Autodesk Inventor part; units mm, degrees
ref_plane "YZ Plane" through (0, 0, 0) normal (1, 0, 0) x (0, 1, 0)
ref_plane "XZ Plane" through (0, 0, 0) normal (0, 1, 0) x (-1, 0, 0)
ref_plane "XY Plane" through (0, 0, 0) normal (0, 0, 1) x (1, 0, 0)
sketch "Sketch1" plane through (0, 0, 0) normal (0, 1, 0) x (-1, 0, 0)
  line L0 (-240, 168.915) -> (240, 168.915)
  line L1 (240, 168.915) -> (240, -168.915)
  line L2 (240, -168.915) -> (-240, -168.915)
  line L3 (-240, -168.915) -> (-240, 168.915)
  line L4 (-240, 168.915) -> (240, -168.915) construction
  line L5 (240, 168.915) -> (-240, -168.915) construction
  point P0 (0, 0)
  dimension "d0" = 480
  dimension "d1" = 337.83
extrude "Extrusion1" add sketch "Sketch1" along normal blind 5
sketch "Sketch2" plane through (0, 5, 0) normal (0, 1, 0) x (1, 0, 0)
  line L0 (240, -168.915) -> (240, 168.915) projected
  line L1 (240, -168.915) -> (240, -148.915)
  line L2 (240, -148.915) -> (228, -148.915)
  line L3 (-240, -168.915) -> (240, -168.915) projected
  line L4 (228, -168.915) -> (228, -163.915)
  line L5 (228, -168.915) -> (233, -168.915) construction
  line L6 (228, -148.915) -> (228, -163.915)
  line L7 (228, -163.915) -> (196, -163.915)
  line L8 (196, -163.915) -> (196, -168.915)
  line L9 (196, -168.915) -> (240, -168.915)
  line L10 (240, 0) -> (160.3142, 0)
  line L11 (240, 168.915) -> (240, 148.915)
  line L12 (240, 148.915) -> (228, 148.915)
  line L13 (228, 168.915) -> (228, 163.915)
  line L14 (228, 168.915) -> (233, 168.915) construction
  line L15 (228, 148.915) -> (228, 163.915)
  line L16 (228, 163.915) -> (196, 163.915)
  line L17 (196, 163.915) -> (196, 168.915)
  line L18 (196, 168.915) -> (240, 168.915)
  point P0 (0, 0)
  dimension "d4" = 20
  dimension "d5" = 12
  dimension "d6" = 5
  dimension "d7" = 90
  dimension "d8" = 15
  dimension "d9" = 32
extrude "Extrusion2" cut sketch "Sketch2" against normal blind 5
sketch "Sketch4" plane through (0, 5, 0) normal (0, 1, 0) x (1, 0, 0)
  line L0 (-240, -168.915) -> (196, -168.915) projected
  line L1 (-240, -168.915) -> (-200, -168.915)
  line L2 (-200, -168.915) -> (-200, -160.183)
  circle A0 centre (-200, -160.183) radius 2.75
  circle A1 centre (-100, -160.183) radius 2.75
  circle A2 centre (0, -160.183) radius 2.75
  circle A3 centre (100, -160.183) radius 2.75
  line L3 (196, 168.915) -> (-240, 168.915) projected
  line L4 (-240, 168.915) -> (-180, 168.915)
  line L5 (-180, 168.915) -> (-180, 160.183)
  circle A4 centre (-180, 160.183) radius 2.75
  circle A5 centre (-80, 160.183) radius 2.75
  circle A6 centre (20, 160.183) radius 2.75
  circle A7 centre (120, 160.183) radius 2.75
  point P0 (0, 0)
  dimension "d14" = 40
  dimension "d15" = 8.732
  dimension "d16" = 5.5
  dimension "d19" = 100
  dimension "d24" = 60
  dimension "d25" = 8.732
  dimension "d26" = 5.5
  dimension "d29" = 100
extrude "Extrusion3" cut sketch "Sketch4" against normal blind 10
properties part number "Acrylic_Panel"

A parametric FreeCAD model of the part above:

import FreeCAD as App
import Part
import Sketcher
from FreeCAD import Vector


def add_polygon(sketch, points):
    """Adds a closed chain of lines whose ends are joined by coincident constraints."""
    first, n = sketch.GeometryCount, len(points)
    for a, b in zip(points, points[1:] + points[:1]):
        sketch.addGeometry(Part.LineSegment(App.Vector(*a, 0), App.Vector(*b, 0)), False)
    for i in range(n):
        sketch.addConstraint(Sketcher.Constraint("Coincident", first + i, 2, first + (i + 1) % n, 1))

doc = App.newDocument("Part")
body = doc.addObject("PartDesign::Body", "Body")

# Sketch on XZ plane
sketch1 = body.newObject("Sketcher::SketchObject", "Sketch")
sketch1.AttachmentSupport = (doc.getObject("XZ_Plane"), [""])
sketch1.MapMode = "FlatFace"
add_polygon(sketch1, [(-240, 169), (240, 169), (240, -169), (-240, -169)])  # lines 0-3
sketch1.addConstraint(Sketcher.Constraint("Horizontal", 0))
sketch1.addConstraint(Sketcher.Constraint("Vertical", 1))
sketch1.addConstraint(Sketcher.Constraint("Horizontal", 2))
sketch1.addConstraint(Sketcher.Constraint("Vertical", 3))
sketch1.addConstraint(Sketcher.Constraint("Symmetric", 0, 2, 2, 2, -1, 1))
sketch1.addConstraint(Sketcher.Constraint("DistanceX", 0, 1, 0, 2, 480.0))
sketch1.addConstraint(Sketcher.Constraint("DistanceY", 1, 2, 1, 1, 337.83))
pad1 = body.newObject("PartDesign::Pad", "Pad")
pad1.Profile = sketch1
pad1.Length = 5
pad1.Reversed = True

# Sketch on XZ plane
sketch2 = body.newObject("Sketcher::SketchObject", "Sketch001")
sketch2.AttachmentSupport = (doc.getObject("XZ_Plane"), [""])
sketch2.MapMode = "FlatFace"
sketch2.AttachmentOffset = App.Placement(Vector(0, 0, -5), App.Rotation())
add_polygon(sketch2, [(240, 169), (240, 149), (228, 149), (228, 164), (196, 164), (196, 169)])  # lines 0-5
add_polygon(sketch2, [(228, -149), (240, -149), (240, -169), (196, -169), (196, -164), (228, -164)])  # lines 6-11
sketch2.addConstraint(Sketcher.Constraint("Vertical", 0))
sketch2.addConstraint(Sketcher.Constraint("Horizontal", 1))
sketch2.addConstraint(Sketcher.Constraint("Vertical", 2))
sketch2.addConstraint(Sketcher.Constraint("Horizontal", 3))
sketch2.addConstraint(Sketcher.Constraint("Vertical", 4))
sketch2.addConstraint(Sketcher.Constraint("Horizontal", 5))
sketch2.addConstraint(Sketcher.Constraint("Horizontal", 6))
sketch2.addConstraint(Sketcher.Constraint("Vertical", 7))
sketch2.addConstraint(Sketcher.Constraint("Horizontal", 8))
sketch2.addConstraint(Sketcher.Constraint("Vertical", 9))
sketch2.addConstraint(Sketcher.Constraint("Horizontal", 10))
sketch2.addConstraint(Sketcher.Constraint("Vertical", 11))
sketch2.addConstraint(Sketcher.Constraint("Symmetric", 0, 2, 6, 2, -1))
sketch2.addConstraint(Sketcher.Constraint("Symmetric", 4, 2, 8, 2, -1))
sketch2.addConstraint(Sketcher.Constraint("Symmetric", 2, 2, 10, 2, -1))
sketch2.addConstraint(Sketcher.Constraint("DistanceX", 1, 2, 1, 1, 12.0))
sketch2.addConstraint(Sketcher.Constraint("DistanceX", 3, 2, 3, 1, 32.0))
sketch2.addConstraint(Sketcher.Constraint("DistanceY", 0, 2, 0, 1, 20.0))
sketch2.addConstraint(Sketcher.Constraint("DistanceY", 2, 1, 2, 2, 15.0))
sketch2.addConstraint(Sketcher.Constraint("DistanceX", -1, 1, 0, 2, 240.0))
sketch2.addConstraint(Sketcher.Constraint("DistanceY", 6, 2, 0, 2, 297.83))
pocket1 = body.newObject("PartDesign::Pocket", "Pocket")
pocket1.Profile = sketch2
pocket1.Length = 5
pocket1.Reversed = True

# Sketch on XZ plane
sketch3 = body.newObject("Sketcher::SketchObject", "Sketch002")
sketch3.AttachmentSupport = (doc.getObject("XZ_Plane"), [""])
sketch3.MapMode = "FlatFace"
sketch3.AttachmentOffset = App.Placement(Vector(0, 0, -5), App.Rotation())
sketch3.addGeometry(Part.Circle(Vector(-200, 160.2, 0), Vector(0, 0, 1), 2.8), False)
sketch3.addGeometry(Part.Circle(Vector(-100, 160.2, 0), Vector(0, 0, 1), 2.8), False)
sketch3.addGeometry(Part.Circle(Vector(0, 160.2, 0), Vector(0, 0, 1), 2.8), False)
sketch3.addGeometry(Part.Circle(Vector(100, 160.2, 0), Vector(0, 0, 1), 2.8), False)
sketch3.addGeometry(Part.Circle(Vector(-180, -160.2, 0), Vector(0, 0, 1), 2.8), False)
sketch3.addGeometry(Part.Circle(Vector(-80, -160.2, 0), Vector(0, 0, 1), 2.8), False)
sketch3.addGeometry(Part.Circle(Vector(20, -160.2, 0), Vector(0, 0, 1), 2.8), False)
sketch3.addGeometry(Part.Circle(Vector(120, -160.2, 0), Vector(0, 0, 1), 2.8), False)
sketch3.addConstraint(Sketcher.Constraint("Equal", 0, 1))
sketch3.addConstraint(Sketcher.Constraint("Equal", 1, 2))
sketch3.addConstraint(Sketcher.Constraint("Equal", 2, 3))
sketch3.addConstraint(Sketcher.Constraint("Equal", 3, 4))
sketch3.addConstraint(Sketcher.Constraint("Equal", 4, 5))
sketch3.addConstraint(Sketcher.Constraint("Equal", 5, 6))
sketch3.addConstraint(Sketcher.Constraint("Equal", 6, 7))
sketch3.addConstraint(Sketcher.Constraint("Symmetric", 1, 3, 3, 3, -2))
sketch3.addConstraint(Sketcher.Constraint("PointOnObject", 2, 3, -2))
sketch3.addConstraint(Sketcher.Constraint("Horizontal", 0, 3, 1, 3))
sketch3.addConstraint(Sketcher.Constraint("Horizontal", 1, 3, 2, 3))
sketch3.addConstraint(Sketcher.Constraint("Horizontal", 4, 3, 5, 3))
sketch3.addConstraint(Sketcher.Constraint("Horizontal", 5, 3, 6, 3))
sketch3.addConstraint(Sketcher.Constraint("Horizontal", 6, 3, 7, 3))
sketch3.addConstraint(Sketcher.Constraint("Diameter", 0, 5.5))
sketch3.addConstraint(Sketcher.Constraint("DistanceX", 1, 3, -1, 1, 100.0))
sketch3.addConstraint(Sketcher.Constraint("DistanceX", 0, 3, 1, 3, 100.0))
sketch3.addConstraint(Sketcher.Constraint("DistanceX", 4, 3, 5, 3, 100.0))
sketch3.addConstraint(Sketcher.Constraint("DistanceX", 5, 3, 6, 3, 100.0))
sketch3.addConstraint(Sketcher.Constraint("DistanceX", 6, 3, 7, 3, 100.0))
sketch3.addConstraint(Sketcher.Constraint("DistanceX", 4, 3, -1, 1, 180.0))
sketch3.addConstraint(Sketcher.Constraint("DistanceY", -1, 1, 0, 3, 160.183))
sketch3.addConstraint(Sketcher.Constraint("DistanceY", 4, 3, -1, 1, 160.183))
pocket2 = body.newObject("PartDesign::Pocket", "Pocket001")
pocket2.Profile = sketch3
pocket2.Length = 10
pocket2.Reversed = True

doc.recompute()
